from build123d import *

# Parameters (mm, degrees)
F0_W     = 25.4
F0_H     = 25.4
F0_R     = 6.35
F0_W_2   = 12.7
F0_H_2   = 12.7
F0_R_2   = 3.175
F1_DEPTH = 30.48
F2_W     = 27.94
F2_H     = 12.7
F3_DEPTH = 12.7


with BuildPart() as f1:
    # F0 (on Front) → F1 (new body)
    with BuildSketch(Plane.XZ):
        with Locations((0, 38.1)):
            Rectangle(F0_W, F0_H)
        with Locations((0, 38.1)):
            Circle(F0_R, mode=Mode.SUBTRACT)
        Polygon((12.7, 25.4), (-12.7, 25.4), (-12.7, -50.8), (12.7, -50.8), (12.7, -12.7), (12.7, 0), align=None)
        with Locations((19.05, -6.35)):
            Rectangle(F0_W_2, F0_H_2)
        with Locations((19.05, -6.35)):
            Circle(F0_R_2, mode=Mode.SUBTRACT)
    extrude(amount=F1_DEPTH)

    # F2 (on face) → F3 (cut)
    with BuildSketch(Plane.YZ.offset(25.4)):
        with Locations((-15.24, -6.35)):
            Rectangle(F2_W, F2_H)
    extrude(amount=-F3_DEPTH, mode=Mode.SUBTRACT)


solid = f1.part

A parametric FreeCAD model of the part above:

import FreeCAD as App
import Part
import Sketcher
Q = App.Units.Quantity

doc = App.newDocument("Part")
body = doc.addObject("PartDesign::Body", "Body")

# Sketch on XZ plane
sketch1 = body.newObject("Sketcher::SketchObject", "Sketch")
sketch1.AttachmentSupport = (doc.getObject("XZ_Plane"), [""])
sketch1.MapMode = "FlatFace"
sketch1.addGeometry([
    Part.LineSegment(App.Vector(-12.7, 50.8, 0), App.Vector(-12.7, -50.8, 0)),  # 0
    Part.LineSegment(App.Vector(-12.7, -50.8, 0), App.Vector(12.7, -50.8, 0)),  # 1
    Part.LineSegment(App.Vector(12.7, -50.8, 0), App.Vector(12.7, -12.7, 0)),  # 2
    Part.LineSegment(App.Vector(12.7, -12.7, 0), App.Vector(25.4, -12.7, 0)),  # 3
    Part.LineSegment(App.Vector(25.4, -12.7, 0), App.Vector(25.4, 0, 0)),  # 4
    Part.LineSegment(App.Vector(25.4, 0, 0), App.Vector(12.7, 0, 0)),  # 5
    Part.LineSegment(App.Vector(12.7, 0, 0), App.Vector(12.7, 50.8, 0)),  # 6
    Part.LineSegment(App.Vector(12.7, 50.8, 0), App.Vector(-12.7, 50.8, 0)),  # 7
    Part.Circle(App.Vector(19.05, -6.35, 0), App.Vector(0, 0, 1), 3.175),  # 8
    Part.Circle(App.Vector(0, 38.1, 0), App.Vector(0, 0, 1), 6.35),  # 9
], False)
sketch1.addConstraint([
    Sketcher.Constraint("Coincident", 0, 2, 1, 1),
    Sketcher.Constraint("Coincident", 1, 2, 2, 1),
    Sketcher.Constraint("Coincident", 2, 2, 3, 1),
    Sketcher.Constraint("Coincident", 3, 2, 4, 1),
    Sketcher.Constraint("Coincident", 4, 2, 5, 1),
    Sketcher.Constraint("Coincident", 5, 2, 6, 1),
    Sketcher.Constraint("Coincident", 6, 2, 7, 1),
    Sketcher.Constraint("Coincident", 7, 2, 0, 1),
    Sketcher.Constraint("Vertical", 0),
    Sketcher.Constraint("Horizontal", 1),
    Sketcher.Constraint("Vertical", 2),
    Sketcher.Constraint("Horizontal", 3),
    Sketcher.Constraint("Vertical", 4),
    Sketcher.Constraint("Horizontal", 5),
    Sketcher.Constraint("Vertical", 6),
    Sketcher.Constraint("Horizontal", 7),
    Sketcher.Constraint("Symmetric", 0, 2, 6, 2, -1, 1),
    Sketcher.Constraint("PointOnObject", 9, 3, -2),
    Sketcher.Constraint("PointOnObject", 4, 2, -1),
    Sketcher.Constraint("Vertical", 2, 2, 5, 2),
    Sketcher.Constraint("Equal", 5, 4),
    Sketcher.Constraint("Diameter", 9, Q("0.5 in")),
    Sketcher.Constraint("Diameter", 8, Q("0.25 in")),
    Sketcher.Constraint("DistanceX", 1, 1, 1, 2, Q("1 in")),
    Sketcher.Constraint("DistanceY", 0, 2, 0, 1, Q("4 in")),
    Sketcher.Constraint("DistanceX", 3, 1, 3, 2, Q("0.5 in")),
    Sketcher.Constraint("DistanceY", 2, 2, 9, 3, Q("2 in")),
    Sketcher.Constraint("DistanceX", -1, 1, 8, 3, Q("0.75 in")),
    Sketcher.Constraint("DistanceY", 8, 3, -1, 1, Q("0.25 in")),
])
pad1 = body.newObject("PartDesign::Pad", "Pad")
pad1.Profile = sketch1
pad1.Length = Q("1.2 in")

# Sketch on YZ plane
sketch2 = body.newObject("Sketcher::SketchObject", "Sketch001")
sketch2.AttachmentSupport = (doc.getObject("YZ_Plane"), [""])
sketch2.MapMode = "FlatFace"
sketch2.AttachmentOffset = App.Placement(App.Vector(0, 0, 1 * 25.4), App.Rotation())
sketch2.addGeometry([
    Part.LineSegment(App.Vector(-29.21, 0, 0), App.Vector(-29.21, -12.7, 0)),
    Part.LineSegment(App.Vector(-29.21, -12.7, 0), App.Vector(-1.27, -12.7, 0)),
    Part.LineSegment(App.Vector(-1.27, -12.7, 0), App.Vector(-1.27, 0, 0)),
    Part.LineSegment(App.Vector(-1.27, 0, 0), App.Vector(-29.21, 0, 0)),
], False)
sketch2.addConstraint([
    Sketcher.Constraint("Coincident", 0, 2, 1, 1),
    Sketcher.Constraint("Coincident", 1, 2, 2, 1),
    Sketcher.Constraint("Coincident", 2, 2, 3, 1),
    Sketcher.Constraint("Coincident", 3, 2, 0, 1),
    Sketcher.Constraint("Vertical", 0),
    Sketcher.Constraint("Horizontal", 1),
    Sketcher.Constraint("Vertical", 2),
    Sketcher.Constraint("Horizontal", 3),
    Sketcher.Constraint("PointOnObject", 2, 2, -1),
    Sketcher.Constraint("DistanceX", 1, 1, 1, 2, Q("1.1 in")),
    Sketcher.Constraint("DistanceY", 0, 2, 0, 1, Q("0.5 in")),
    Sketcher.Constraint("DistanceX", 0, 2, -1, 1, Q("1.15 in")),
])
pocket1 = body.newObject("PartDesign::Pocket", "Pocket")
pocket1.Profile = sketch2
pocket1.Length = Q("0.5 in")

doc.recompute()
